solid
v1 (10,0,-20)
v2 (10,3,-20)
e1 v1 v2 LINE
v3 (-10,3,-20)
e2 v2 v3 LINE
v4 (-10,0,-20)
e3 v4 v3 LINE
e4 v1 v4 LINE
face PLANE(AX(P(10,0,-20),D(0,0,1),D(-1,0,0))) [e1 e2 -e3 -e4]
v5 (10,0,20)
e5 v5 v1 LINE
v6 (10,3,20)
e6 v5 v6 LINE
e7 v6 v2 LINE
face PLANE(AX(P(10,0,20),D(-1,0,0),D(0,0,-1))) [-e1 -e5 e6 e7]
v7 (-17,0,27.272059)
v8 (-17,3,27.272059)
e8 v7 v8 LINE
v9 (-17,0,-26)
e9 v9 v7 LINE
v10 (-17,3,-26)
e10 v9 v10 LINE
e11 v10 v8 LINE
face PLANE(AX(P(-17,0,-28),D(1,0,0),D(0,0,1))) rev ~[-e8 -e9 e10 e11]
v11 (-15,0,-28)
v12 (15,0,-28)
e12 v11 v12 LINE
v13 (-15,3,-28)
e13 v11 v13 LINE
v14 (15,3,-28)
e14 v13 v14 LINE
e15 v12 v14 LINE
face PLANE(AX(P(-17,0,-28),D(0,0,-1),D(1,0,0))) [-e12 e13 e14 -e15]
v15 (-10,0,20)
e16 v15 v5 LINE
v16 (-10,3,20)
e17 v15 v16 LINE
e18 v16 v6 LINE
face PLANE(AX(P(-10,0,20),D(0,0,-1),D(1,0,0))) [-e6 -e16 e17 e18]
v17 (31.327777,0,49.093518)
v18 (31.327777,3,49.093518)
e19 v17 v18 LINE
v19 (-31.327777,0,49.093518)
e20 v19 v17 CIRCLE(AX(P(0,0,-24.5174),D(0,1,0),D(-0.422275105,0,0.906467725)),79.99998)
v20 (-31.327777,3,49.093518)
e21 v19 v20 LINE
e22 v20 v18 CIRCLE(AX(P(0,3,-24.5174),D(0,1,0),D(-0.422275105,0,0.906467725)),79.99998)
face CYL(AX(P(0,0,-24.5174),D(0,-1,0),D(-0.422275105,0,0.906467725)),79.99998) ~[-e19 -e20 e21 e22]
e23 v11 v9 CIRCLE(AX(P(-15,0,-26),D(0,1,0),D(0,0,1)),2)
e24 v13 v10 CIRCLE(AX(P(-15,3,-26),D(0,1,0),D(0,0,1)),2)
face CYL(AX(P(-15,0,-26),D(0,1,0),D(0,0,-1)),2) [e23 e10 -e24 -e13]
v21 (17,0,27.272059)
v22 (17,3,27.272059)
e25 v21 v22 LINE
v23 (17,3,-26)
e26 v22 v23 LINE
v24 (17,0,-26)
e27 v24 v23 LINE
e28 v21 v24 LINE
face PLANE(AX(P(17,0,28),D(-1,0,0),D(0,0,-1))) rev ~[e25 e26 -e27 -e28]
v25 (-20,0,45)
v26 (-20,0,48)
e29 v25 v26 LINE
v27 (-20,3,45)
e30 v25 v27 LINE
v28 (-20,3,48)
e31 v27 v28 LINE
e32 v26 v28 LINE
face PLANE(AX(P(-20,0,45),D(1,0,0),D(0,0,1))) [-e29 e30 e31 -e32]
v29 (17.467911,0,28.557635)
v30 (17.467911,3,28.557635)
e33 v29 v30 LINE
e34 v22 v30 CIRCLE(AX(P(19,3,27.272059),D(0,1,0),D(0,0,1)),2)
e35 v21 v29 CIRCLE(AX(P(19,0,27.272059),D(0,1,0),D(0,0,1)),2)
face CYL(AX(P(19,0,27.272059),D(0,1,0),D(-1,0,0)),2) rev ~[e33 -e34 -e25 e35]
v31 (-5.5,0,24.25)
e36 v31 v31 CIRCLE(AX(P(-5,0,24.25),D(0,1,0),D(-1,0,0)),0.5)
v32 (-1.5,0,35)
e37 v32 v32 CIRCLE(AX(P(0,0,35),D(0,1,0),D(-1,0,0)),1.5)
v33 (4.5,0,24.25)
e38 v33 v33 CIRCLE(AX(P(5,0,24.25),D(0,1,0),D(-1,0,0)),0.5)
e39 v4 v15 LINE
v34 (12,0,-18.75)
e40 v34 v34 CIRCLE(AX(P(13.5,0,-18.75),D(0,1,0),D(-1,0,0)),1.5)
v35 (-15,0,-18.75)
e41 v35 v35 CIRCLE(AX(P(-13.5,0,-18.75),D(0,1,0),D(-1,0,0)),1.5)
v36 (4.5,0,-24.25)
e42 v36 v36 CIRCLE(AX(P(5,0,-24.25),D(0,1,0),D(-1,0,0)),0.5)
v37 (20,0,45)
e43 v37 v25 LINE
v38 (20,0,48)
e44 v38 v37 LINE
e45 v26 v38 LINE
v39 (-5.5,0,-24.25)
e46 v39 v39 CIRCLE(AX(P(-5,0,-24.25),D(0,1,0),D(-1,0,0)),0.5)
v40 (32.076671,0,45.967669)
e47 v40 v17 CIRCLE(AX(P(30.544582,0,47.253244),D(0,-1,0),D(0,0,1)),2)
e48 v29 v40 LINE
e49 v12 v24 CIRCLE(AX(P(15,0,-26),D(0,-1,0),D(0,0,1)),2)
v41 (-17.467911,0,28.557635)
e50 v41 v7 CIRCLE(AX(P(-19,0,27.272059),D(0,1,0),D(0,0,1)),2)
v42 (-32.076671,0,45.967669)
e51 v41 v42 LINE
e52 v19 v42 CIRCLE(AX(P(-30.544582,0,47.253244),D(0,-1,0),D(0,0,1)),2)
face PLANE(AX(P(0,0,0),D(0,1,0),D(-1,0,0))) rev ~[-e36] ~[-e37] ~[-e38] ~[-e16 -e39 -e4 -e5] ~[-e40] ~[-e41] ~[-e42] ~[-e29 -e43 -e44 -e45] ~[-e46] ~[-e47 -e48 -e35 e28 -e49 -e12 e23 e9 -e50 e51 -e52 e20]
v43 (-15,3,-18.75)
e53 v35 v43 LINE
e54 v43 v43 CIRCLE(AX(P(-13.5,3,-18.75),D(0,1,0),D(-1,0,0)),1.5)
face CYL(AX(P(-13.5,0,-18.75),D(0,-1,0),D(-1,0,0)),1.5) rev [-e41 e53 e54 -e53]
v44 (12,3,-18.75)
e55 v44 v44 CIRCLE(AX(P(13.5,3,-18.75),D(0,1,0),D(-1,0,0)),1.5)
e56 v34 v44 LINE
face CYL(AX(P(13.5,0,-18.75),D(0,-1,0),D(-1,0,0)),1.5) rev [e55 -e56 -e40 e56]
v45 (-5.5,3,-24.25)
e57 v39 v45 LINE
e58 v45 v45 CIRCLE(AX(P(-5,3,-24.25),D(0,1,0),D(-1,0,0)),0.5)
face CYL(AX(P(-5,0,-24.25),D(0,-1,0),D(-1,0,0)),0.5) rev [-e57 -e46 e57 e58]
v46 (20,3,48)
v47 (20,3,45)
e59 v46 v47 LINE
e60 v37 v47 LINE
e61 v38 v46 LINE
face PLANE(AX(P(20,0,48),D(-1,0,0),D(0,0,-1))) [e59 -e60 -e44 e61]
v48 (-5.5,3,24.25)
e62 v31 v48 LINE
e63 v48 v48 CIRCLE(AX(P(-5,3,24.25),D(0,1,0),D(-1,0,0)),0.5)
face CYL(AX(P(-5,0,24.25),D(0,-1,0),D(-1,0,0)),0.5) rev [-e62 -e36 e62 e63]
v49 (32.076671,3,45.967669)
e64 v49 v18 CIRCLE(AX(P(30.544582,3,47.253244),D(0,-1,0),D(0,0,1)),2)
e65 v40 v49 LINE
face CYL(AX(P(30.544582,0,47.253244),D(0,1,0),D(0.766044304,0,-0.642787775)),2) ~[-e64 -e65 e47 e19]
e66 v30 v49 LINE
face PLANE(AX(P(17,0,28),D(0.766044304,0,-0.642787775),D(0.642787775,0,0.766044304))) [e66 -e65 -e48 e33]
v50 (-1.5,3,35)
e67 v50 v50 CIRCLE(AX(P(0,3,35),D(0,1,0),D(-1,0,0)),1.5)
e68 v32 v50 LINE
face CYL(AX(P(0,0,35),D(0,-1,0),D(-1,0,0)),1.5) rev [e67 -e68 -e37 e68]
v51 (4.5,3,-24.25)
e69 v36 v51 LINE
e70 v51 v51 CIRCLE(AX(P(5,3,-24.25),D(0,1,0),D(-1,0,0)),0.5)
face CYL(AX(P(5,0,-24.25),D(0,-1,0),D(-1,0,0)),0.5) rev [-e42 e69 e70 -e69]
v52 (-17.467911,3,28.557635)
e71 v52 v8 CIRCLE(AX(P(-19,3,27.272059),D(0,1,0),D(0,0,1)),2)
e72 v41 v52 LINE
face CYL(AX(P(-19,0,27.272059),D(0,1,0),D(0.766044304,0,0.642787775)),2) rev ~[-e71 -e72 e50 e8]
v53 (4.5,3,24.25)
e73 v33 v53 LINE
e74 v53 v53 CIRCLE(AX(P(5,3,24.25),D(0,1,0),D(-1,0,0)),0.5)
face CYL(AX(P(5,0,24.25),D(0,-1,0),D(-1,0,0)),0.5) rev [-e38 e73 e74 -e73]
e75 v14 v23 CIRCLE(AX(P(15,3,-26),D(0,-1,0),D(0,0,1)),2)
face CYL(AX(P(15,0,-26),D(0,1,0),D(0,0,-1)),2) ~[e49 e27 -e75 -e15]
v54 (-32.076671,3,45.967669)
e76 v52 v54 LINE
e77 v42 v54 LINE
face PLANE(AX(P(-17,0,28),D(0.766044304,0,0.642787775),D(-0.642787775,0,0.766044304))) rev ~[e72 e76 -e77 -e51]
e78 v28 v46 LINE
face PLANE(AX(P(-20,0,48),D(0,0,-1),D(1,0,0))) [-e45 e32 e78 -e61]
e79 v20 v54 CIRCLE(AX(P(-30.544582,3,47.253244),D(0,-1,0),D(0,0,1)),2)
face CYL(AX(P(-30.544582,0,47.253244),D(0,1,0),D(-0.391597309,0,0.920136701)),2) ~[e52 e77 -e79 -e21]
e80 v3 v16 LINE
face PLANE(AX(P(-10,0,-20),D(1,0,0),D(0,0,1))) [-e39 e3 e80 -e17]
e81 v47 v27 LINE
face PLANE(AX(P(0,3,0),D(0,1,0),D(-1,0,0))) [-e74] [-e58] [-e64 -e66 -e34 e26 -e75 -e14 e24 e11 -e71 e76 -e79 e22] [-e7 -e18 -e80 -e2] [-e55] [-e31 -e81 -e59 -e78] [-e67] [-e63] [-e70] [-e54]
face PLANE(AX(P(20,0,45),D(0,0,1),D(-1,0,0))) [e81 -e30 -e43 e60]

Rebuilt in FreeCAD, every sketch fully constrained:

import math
import FreeCAD as App
import Part
import Sketcher
Q = App.Units.Quantity


def edges_at(feature, points):
    """Names of the edges that pass closest to the given points."""
    edges = feature.Shape.Edges
    near = lambda p: min(range(len(edges)), key=lambda i: edges[i].distToShape(Part.Vertex(*p))[0])
    return sorted({f"Edge{near(p) + 1}" for p in points})


def add_polygon(sketch, points):
    """Adds a closed chain of lines whose ends are joined by coincident constraints."""
    first, n = sketch.GeometryCount, len(points)
    for a, b in zip(points, points[1:] + points[:1]):
        sketch.addGeometry(Part.LineSegment(App.Vector(*a, 0), App.Vector(*b, 0)), False)
    for i in range(n):
        sketch.addConstraint(Sketcher.Constraint("Coincident", first + i, 2, first + (i + 1) % n, 1))

doc = App.newDocument("Part")
params = doc.addObject("Spreadsheet::Sheet", "Params")
for row, (alias, value) in enumerate([
    ("sketch1_diameter", "3 mm"),
    ("sketch1_diameter2", "1 mm"),
    ("sketch1_radius", "80 mm"),
    ("sketch1_width", "20 mm"),
    ("sketch1_width2", "40 mm"),
    ("pad1_length", "3 mm"),
    ("fillet_radius", "2 mm"),
], start=1):
    params.set(f"A{row}", alias)
    params.set(f"B{row}", "=" + value)
    params.setAlias(f"B{row}", alias)

body = doc.addObject("PartDesign::Body", "Body")

sketch1 = body.newObject("Sketcher::SketchObject", "Sketch")
sketch1.AttachmentSupport = (doc.getObject("XZ_Plane"), [""])
sketch1.MapMode = "FlatFace"
sketch1.addGeometry(Part.LineSegment(App.Vector(17, -28, 0), App.Vector(-17, -28, 0)), False)
sketch1.addGeometry(Part.LineSegment(App.Vector(-17, -28, 0), App.Vector(-17, 28, 0)), False)
sketch1.addGeometry(Part.LineSegment(App.Vector(-17, 28, 0), App.Vector(-33.8, 48, 0)), False)
sketch1.addGeometry(Part.ArcOfCircle(Part.Circle(App.Vector(0, -24.5, 0), App.Vector(0, 0, 1), 80), math.radians(65), math.radians(115)), False)
sketch1.addGeometry(Part.LineSegment(App.Vector(33.8, 48, 0), App.Vector(17, 28, 0)), False)
sketch1.addGeometry(Part.LineSegment(App.Vector(17, 28, 0), App.Vector(17, -28, 0)), False)
sketch1.addGeometry(Part.Circle(App.Vector(13.5, -18.8, 0), App.Vector(0, 0, 1), 1.5), False)
sketch1.addGeometry(Part.Circle(App.Vector(5, -24.2, 0), App.Vector(0, 0, 1), 0.5), False)
add_polygon(sketch1, [(10, 20), (-10, 20), (-10, -20), (10, -20)])
sketch1.addGeometry(Part.Circle(App.Vector(-5, -24.2, 0), App.Vector(0, 0, 1), 0.5), False)
sketch1.addGeometry(Part.Circle(App.Vector(-13.5, -18.8, 0), App.Vector(0, 0, 1), 1.5), False)
sketch1.addGeometry(Part.Circle(App.Vector(5, 24.2, 0), App.Vector(0, 0, 1), 0.5), False)
sketch1.addGeometry(Part.Circle(App.Vector(0, 35, 0), App.Vector(0, 0, 1), 1.5), False)
add_polygon(sketch1, [(20, 48), (-20, 48), (-20, 45), (20, 45)])
sketch1.addGeometry(Part.Circle(App.Vector(-5, 24.2, 0), App.Vector(0, 0, 1), 0.5), False)
sketch1.addConstraint([
    Sketcher.Constraint("Coincident", 0, 2, 1, 1),
    Sketcher.Constraint("Coincident", 1, 2, 2, 1),
    Sketcher.Constraint("Coincident", 2, 2, 3, 2),
    Sketcher.Constraint("Coincident", 3, 1, 4, 1),
    Sketcher.Constraint("Coincident", 4, 2, 5, 1),
    Sketcher.Constraint("Coincident", 5, 2, 0, 1),
    Sketcher.Constraint("Horizontal", 0),
    Sketcher.Constraint("Vertical", 1),
    Sketcher.Constraint("Vertical", 5),
    Sketcher.Constraint("Horizontal", 8),
    Sketcher.Constraint("Vertical", 9),
    Sketcher.Constraint("Horizontal", 10),
    Sketcher.Constraint("Vertical", 11),
    Sketcher.Constraint("Horizontal", 16),
    Sketcher.Constraint("Vertical", 17),
    Sketcher.Constraint("Horizontal", 18),
    Sketcher.Constraint("Vertical", 19),
    Sketcher.Constraint("Equal", 7, 12),
    Sketcher.Constraint("Equal", 6, 13),
    Sketcher.Constraint("Equal", 12, 14),
    Sketcher.Constraint("Equal", 13, 15),
    Sketcher.Constraint("Equal", 14, 20),
    Sketcher.Constraint("Symmetric", 12, 3, 14, 3, -1, 1),
    Sketcher.Constraint("Symmetric", 7, 3, 20, 3, -1, 1),
    Sketcher.Constraint("Symmetric", 0, 2, 4, 2, -1, 1),
    Sketcher.Constraint("Symmetric", 8, 2, 10, 2, -1, 1),
    Sketcher.Constraint("Symmetric", 7, 3, 12, 3, -2),
    Sketcher.Constraint("Symmetric", 6, 3, 13, 3, -2),
    Sketcher.Constraint("Symmetric", 2, 2, 3, 1, -2),
    Sketcher.Constraint("PointOnObject", 15, 3, -2),
    Sketcher.Constraint("Horizontal", 1, 2, 4, 2),
    Sketcher.Constraint("Horizontal", 3, 1, 16, 2),
    Sketcher.Constraint("Equal", 18, 9),
    Sketcher.Constraint("Diameter", 6, Q("3 mm")),
    Sketcher.Constraint("Diameter", 7, Q("1 mm")),
    Sketcher.Constraint("Radius", 3, Q("80 mm")),
    Sketcher.Constraint("DistanceX", 8, 2, 8, 1, Q("20 mm")),
    Sketcher.Constraint("DistanceX", 16, 2, 16, 1, Q("40 mm")),
    Sketcher.Constraint("DistanceY", 1, 1, 1, 2, Q("56 mm")),
    Sketcher.Constraint("DistanceY", 17, 2, 17, 1, Q("3 mm")),
    Sketcher.Constraint("DistanceX", -1, 1, 7, 3, Q("5 mm")),
    Sketcher.Constraint("DistanceX", 16, 2, -1, 1, Q("20 mm")),
    Sketcher.Constraint("DistanceY", 1, 2, 15, 3, Q("7 mm")),
    Sketcher.Constraint("DistanceY", 1, 2, 2, 2, Q("20 mm")),
    Sketcher.Constraint("DistanceX", 1, 2, 8, 2, Q("7 mm")),
    Sketcher.Constraint("DistanceX", 0, 2, 13, 3, Q("3.5 mm")),
    Sketcher.Constraint("Angle", 2, Q("130 deg")),
    Sketcher.Constraint("DistanceY", 0, 2, 13, 3, Q("9.25 mm")),
    Sketcher.Constraint("DistanceY", 8, 2, 20, 3, Q("4.25 mm")),
])
sketch1.setExpression("Constraints[41]", "Params.sketch1_diameter")
sketch1.setExpression("Constraints[42]", "Params.sketch1_diameter2")
sketch1.setExpression("Constraints[43]", "Params.sketch1_radius")
sketch1.setExpression("Constraints[44]", "Params.sketch1_width")
sketch1.setExpression("Constraints[45]", "Params.sketch1_width2")
pad1 = body.newObject("PartDesign::Pad", "Pad")
pad1.Profile = sketch1
pad1.setExpression("Length", "Params.pad1_length")
pad1.Reversed = True
doc.recompute()

fillet = body.newObject("PartDesign::Fillet", "Fillet")
fillet.Base = (pad1, edges_at(pad1, [
    (33.782, 1.5, 48),
    (-33.782, 1.5, 48),
    (17, 1.5, 28),
    (-17, 1.5, 28),
    (-17, 1.5, -28),
    (17, 1.5, -28),
]))
fillet.setExpression("Radius", "Params.fillet_radius")

doc.recompute()
